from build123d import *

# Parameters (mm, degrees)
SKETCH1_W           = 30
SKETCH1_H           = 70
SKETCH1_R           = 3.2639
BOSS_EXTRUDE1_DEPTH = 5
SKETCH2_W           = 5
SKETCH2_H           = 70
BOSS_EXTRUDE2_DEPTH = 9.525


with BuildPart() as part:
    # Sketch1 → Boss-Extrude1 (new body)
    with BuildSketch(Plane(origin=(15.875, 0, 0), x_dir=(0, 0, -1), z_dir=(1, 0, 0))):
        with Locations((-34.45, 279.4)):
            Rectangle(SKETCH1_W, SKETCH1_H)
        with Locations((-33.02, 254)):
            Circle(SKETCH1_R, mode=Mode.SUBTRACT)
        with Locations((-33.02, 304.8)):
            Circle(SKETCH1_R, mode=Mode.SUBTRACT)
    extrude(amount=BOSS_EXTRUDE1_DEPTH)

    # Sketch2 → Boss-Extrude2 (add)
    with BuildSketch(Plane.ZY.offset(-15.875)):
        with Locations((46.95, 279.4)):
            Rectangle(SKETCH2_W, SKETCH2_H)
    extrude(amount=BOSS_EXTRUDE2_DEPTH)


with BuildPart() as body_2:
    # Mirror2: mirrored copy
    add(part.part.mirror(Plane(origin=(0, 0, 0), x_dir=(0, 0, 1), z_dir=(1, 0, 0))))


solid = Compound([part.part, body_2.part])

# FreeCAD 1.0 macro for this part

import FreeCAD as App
import Part
import Sketcher
from FreeCAD import Vector


def add_polygon(sketch, points):
    """Adds a closed chain of lines whose ends are joined by coincident constraints."""
    first, n = sketch.GeometryCount, len(points)
    for a, b in zip(points, points[1:] + points[:1]):
        sketch.addGeometry(Part.LineSegment(App.Vector(*a, 0), App.Vector(*b, 0)), False)
    for i in range(n):
        sketch.addConstraint(Sketcher.Constraint("Coincident", first + i, 2, first + (i + 1) % n, 1))

doc = App.newDocument("Part")
body = doc.addObject("PartDesign::Body", "Body")

sketch1 = body.newObject("Sketcher::SketchObject", "Sketch")
sketch1.AttachmentSupport = (doc.getObject("YZ_Plane"), [""])
sketch1.MapMode = "FlatFace"
sketch1.AttachmentOffset = App.Placement(Vector(0, 0, 15.875), App.Rotation())
add_polygon(sketch1, [(314.4, 49.5), (244.4, 49.5), (244.4, 19.4), (314.4, 19.4)])
sketch1.addGeometry(Part.Circle(Vector(254, 33, 0), Vector(0, 0, 1), 3.3), False)
sketch1.addGeometry(Part.Circle(Vector(304.8, 33, 0), Vector(0, 0, 1), 3.3), False)
sketch1.addConstraint([
    Sketcher.Constraint("Horizontal", 0),
    Sketcher.Constraint("Vertical", 1),
    Sketcher.Constraint("Horizontal", 2),
    Sketcher.Constraint("Vertical", 3),
    Sketcher.Constraint("Equal", 4, 5),
    Sketcher.Constraint("Horizontal", 4, 3, 5, 3),
    Sketcher.Constraint("DistanceX", 0, 2, 0, 1, 70.0),
    Sketcher.Constraint("DistanceY", 1, 2, 1, 1, 30.0),
    Sketcher.Constraint("DistanceX", -1, 1, 4, 3, 254.0),
    Sketcher.Constraint("Diameter", 4, 6.5278),
    Sketcher.Constraint("DistanceX", -1, 1, 5, 3, 304.8),
    Sketcher.Constraint("DistanceX", -1, 1, 0, 2, 244.4),
    Sketcher.Constraint("DistanceY", -1, 1, 4, 3, 33.02),
    Sketcher.Constraint("DistanceY", -1, 1, 0, 2, 49.45),
])
pad1 = body.newObject("PartDesign::Pad", "Pad")
pad1.Profile = sketch1
pad1.Length = 5

sketch2 = body.newObject("Sketcher::SketchObject", "Sketch001")
sketch2.AttachmentSupport = (doc.getObject("YZ_Plane"), [""])
sketch2.MapMode = "FlatFace"
sketch2.AttachmentOffset = App.Placement(Vector(0, 0, 15.875), App.Rotation())
add_polygon(sketch2, [(314, 44), (244, 44), (244, 49), (314, 49)])
sketch2.addConstraint([
    Sketcher.Constraint("Horizontal", 0),
    Sketcher.Constraint("Vertical", 1),
    Sketcher.Constraint("Horizontal", 2),
    Sketcher.Constraint("Vertical", 3),
    Sketcher.Constraint("DistanceX", 0, 2, 0, 1, 70.0),
    Sketcher.Constraint("DistanceY", 1, 1, 1, 2, 5.0),
    Sketcher.Constraint("DistanceX", -1, 1, 0, 2, 244.4),
    Sketcher.Constraint("DistanceY", -1, 1, 0, 2, 44.45),
])
pad2 = body.newObject("PartDesign::Pad", "Pad001")
pad2.Profile = sketch2
pad2.Length = 9.525
pad2.Reversed = True
body2 = doc.addObject("PartDesign::Body", "Body001")
doc.recompute()

mirroring = doc.addObject("Part::Mirroring", "Mirroring")
mirroring.Source = body
mirroring.Base = Vector(0, 0, 0)
mirroring.Normal = Vector(1, 0, 0)
body2.BaseFeature = mirroring
doc.recompute()
mirroring.Visibility = False

doc.recompute()
